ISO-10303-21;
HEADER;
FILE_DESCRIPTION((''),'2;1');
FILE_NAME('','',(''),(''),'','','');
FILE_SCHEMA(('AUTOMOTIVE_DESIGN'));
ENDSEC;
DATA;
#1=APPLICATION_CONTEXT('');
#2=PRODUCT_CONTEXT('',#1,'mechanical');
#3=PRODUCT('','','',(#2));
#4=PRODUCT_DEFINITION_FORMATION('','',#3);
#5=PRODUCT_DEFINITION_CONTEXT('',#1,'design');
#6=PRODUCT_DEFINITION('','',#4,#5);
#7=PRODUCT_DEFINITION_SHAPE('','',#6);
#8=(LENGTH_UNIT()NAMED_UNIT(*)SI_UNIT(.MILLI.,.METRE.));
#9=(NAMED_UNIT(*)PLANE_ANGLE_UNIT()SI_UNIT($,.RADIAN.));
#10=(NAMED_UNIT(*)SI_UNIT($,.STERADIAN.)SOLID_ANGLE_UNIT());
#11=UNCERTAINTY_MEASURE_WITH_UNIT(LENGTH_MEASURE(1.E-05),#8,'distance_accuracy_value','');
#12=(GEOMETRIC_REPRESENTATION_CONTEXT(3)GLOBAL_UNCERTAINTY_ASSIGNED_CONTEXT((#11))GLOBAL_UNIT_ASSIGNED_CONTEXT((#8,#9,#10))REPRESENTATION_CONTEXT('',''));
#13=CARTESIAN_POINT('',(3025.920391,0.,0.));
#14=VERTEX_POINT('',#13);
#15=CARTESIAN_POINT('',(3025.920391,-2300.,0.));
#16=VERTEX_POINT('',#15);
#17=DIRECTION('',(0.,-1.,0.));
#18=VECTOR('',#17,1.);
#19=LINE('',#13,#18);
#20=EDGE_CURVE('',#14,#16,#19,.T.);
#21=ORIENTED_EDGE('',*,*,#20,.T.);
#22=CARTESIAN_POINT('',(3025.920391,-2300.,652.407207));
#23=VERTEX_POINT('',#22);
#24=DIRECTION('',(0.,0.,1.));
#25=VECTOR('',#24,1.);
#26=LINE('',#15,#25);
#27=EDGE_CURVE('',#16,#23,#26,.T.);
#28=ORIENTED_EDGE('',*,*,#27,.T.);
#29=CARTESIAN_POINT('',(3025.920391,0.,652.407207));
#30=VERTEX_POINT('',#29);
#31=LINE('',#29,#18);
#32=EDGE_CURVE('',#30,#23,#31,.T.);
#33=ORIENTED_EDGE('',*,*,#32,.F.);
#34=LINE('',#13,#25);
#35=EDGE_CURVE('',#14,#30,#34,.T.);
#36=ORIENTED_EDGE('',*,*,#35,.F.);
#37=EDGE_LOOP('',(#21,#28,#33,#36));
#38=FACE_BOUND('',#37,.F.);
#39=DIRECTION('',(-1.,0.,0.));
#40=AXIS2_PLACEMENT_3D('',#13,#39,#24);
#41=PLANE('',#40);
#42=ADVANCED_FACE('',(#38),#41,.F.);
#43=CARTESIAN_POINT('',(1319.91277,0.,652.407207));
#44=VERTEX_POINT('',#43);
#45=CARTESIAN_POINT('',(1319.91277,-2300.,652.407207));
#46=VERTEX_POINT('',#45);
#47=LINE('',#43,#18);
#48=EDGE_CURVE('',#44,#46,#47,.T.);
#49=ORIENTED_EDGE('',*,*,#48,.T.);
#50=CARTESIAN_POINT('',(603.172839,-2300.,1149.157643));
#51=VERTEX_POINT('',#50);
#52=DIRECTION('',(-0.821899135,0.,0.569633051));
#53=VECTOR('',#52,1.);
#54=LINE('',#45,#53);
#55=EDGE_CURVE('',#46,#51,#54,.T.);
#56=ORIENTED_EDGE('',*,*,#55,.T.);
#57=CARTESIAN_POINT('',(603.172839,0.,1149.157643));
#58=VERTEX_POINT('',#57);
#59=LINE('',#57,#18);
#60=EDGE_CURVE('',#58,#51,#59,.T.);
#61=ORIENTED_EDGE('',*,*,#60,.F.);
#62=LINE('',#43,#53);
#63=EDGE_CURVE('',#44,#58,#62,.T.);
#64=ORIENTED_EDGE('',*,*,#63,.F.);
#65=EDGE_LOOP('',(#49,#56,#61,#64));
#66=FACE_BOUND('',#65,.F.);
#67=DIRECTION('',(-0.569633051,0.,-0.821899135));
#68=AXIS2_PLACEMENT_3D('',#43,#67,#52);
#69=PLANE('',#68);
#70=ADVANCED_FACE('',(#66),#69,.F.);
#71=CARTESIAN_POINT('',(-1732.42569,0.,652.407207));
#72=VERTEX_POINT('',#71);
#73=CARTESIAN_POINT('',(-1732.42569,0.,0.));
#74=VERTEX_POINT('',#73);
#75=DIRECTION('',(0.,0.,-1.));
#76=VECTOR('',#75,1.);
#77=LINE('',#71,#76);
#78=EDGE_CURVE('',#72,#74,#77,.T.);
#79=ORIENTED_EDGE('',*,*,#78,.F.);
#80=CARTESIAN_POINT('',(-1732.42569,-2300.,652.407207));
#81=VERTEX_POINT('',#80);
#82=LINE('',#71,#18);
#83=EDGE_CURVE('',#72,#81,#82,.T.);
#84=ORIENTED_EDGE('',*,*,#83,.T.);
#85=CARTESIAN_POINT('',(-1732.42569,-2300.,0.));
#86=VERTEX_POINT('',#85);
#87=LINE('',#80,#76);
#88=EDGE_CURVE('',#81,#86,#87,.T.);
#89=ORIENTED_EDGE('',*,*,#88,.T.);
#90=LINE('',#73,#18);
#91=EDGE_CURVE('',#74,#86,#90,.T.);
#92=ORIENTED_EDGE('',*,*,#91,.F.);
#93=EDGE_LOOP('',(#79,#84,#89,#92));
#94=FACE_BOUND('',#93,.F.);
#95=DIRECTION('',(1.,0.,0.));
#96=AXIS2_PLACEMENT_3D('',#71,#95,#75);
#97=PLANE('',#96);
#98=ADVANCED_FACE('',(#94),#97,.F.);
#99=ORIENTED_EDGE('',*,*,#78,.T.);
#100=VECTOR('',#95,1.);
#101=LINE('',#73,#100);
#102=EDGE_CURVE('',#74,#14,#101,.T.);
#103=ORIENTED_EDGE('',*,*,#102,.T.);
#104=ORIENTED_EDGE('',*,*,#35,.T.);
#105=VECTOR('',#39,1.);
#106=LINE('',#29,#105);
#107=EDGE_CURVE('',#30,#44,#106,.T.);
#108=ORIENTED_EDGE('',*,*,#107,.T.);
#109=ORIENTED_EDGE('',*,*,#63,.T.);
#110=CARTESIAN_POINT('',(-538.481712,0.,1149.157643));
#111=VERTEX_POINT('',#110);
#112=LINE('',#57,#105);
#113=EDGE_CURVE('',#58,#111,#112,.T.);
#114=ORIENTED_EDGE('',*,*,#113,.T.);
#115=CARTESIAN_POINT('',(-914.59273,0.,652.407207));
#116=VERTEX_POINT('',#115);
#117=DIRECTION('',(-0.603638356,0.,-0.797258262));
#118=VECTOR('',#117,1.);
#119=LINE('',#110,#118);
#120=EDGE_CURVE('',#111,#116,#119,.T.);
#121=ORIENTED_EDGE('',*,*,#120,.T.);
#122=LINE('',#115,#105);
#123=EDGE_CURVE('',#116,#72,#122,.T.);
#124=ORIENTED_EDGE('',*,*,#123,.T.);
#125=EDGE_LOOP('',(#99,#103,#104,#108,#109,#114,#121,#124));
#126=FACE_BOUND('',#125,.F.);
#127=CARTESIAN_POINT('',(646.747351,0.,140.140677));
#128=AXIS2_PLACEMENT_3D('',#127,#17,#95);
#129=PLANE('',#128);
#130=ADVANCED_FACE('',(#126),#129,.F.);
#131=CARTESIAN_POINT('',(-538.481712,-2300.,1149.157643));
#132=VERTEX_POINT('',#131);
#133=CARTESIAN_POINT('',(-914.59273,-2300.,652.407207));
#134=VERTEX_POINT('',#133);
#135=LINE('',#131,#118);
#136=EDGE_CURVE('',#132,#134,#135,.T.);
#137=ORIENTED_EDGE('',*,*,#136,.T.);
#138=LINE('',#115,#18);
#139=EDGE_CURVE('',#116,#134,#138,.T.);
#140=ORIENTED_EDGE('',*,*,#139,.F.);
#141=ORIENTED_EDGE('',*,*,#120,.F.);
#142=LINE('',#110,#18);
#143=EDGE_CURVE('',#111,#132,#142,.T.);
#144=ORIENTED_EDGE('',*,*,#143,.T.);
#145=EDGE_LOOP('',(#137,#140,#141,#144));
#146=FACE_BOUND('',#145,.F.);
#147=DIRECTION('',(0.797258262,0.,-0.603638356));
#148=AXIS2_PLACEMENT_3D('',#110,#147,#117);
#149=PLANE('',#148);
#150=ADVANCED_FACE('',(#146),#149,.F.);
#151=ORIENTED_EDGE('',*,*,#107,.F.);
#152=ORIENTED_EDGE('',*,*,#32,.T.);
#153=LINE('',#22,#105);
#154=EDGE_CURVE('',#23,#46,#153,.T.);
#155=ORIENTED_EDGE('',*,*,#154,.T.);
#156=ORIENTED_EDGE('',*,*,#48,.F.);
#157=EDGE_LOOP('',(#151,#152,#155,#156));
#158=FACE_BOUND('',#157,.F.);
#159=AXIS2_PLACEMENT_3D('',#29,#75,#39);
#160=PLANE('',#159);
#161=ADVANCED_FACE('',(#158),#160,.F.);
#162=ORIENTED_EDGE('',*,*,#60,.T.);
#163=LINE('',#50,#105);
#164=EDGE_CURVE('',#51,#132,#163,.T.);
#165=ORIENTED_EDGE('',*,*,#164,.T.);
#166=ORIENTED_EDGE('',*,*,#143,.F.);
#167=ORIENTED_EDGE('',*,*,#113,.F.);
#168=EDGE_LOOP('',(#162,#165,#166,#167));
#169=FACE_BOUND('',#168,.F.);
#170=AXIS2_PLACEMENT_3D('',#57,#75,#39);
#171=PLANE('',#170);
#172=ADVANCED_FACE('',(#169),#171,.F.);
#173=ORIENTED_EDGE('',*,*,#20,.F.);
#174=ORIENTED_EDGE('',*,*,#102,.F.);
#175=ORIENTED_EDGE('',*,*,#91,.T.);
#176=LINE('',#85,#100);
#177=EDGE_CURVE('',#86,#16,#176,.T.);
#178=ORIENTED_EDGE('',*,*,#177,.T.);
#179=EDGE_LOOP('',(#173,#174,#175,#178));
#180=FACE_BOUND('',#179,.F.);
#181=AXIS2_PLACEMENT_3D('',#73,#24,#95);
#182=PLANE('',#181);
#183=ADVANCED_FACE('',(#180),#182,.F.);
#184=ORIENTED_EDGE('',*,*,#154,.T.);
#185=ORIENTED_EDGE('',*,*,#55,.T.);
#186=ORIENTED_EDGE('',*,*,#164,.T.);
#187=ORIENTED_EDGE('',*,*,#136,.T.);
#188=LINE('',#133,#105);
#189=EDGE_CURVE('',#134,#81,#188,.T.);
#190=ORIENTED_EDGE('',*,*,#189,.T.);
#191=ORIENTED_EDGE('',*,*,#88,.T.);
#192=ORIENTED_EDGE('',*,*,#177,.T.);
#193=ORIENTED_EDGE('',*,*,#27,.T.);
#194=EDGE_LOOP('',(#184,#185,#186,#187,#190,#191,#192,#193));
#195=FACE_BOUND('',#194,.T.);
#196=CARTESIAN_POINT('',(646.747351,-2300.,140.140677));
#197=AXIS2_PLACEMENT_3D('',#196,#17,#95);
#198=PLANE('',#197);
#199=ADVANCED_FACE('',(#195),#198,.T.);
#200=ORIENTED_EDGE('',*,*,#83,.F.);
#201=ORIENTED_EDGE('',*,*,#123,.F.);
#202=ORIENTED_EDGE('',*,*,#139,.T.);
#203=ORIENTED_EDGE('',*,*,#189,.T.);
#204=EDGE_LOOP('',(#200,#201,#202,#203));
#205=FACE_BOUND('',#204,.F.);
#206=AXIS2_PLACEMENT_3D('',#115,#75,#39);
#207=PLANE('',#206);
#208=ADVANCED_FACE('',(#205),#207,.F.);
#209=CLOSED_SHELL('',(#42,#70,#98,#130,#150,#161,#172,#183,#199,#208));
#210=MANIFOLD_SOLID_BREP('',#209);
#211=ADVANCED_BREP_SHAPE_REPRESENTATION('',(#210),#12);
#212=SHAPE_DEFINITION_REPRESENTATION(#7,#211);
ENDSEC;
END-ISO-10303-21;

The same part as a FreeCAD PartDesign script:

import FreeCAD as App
import Part
import Sketcher

V = App.Vector
Q = App.Units.Quantity

doc = App.newDocument("Part")
body = doc.addObject("PartDesign::Body", "Body")

sketch1 = body.newObject("Sketcher::SketchObject", "Sketch")
sketch1.AttachmentSupport = (doc.getObject("XZ_Plane"), [""])
sketch1.MapMode = "FlatFace"
sketch1.addGeometry(Part.LineSegment(V(-1732, 0, 0), V(3026, 0, 0)), False)
sketch1.addGeometry(Part.LineSegment(V(3026, 0, 0), V(3026, 652, 0)), False)
sketch1.addGeometry(Part.LineSegment(V(3026, 652, 0), V(1320, 652, 0)), False)
sketch1.addGeometry(Part.LineSegment(V(1320, 652, 0), V(603, 1149, 0)), False)
sketch1.addGeometry(Part.LineSegment(V(603, 1149, 0), V(-538, 1149, 0)), False)
sketch1.addGeometry(Part.LineSegment(V(-538, 1149, 0), V(-915, 652, 0)), False)
sketch1.addGeometry(Part.LineSegment(V(-915, 652, 0), V(-1732, 652, 0)), False)
sketch1.addGeometry(Part.LineSegment(V(-1732, 652, 0), V(-1732, 0, 0)), False)
sketch1.addConstraint(Sketcher.Constraint("Coincident", 0, 2, 1, 1))
sketch1.addConstraint(Sketcher.Constraint("Coincident", 1, 2, 2, 1))
sketch1.addConstraint(Sketcher.Constraint("Coincident", 2, 2, 3, 1))
sketch1.addConstraint(Sketcher.Constraint("Coincident", 3, 2, 4, 1))
sketch1.addConstraint(Sketcher.Constraint("Coincident", 4, 2, 5, 1))
sketch1.addConstraint(Sketcher.Constraint("Coincident", 5, 2, 6, 1))
sketch1.addConstraint(Sketcher.Constraint("Coincident", 6, 2, 7, 1))
sketch1.addConstraint(Sketcher.Constraint("Coincident", 7, 2, 0, 1))
sketch1.addConstraint(Sketcher.Constraint("Horizontal", 0))
sketch1.addConstraint(Sketcher.Constraint("Vertical", 1))
sketch1.addConstraint(Sketcher.Constraint("Horizontal", 2))
sketch1.addConstraint(Sketcher.Constraint("Horizontal", 4))
sketch1.addConstraint(Sketcher.Constraint("Horizontal", 6))
sketch1.addConstraint(Sketcher.Constraint("Vertical", 7))
sketch1.addConstraint(Sketcher.Constraint("PointOnObject", 0, 2, -1))
sketch1.addConstraint(Sketcher.Constraint("Horizontal", 2, 2, 5, 2))
sketch1.addConstraint(Sketcher.Constraint("DistanceX", 0, 1, 0, 2, Q("4758.346081 mm")))
sketch1.addConstraint(Sketcher.Constraint("DistanceX", 2, 2, 2, 1, Q("1706.007621 mm")))
sketch1.addConstraint(Sketcher.Constraint("DistanceX", 4, 2, 4, 1, Q("1141.654551 mm")))
sketch1.addConstraint(Sketcher.Constraint("DistanceX", 6, 2, 6, 1, Q("817.83296 mm")))
sketch1.addConstraint(Sketcher.Constraint("DistanceY", 1, 1, 1, 2, Q("652.407207 mm")))
sketch1.addConstraint(Sketcher.Constraint("DistanceX", -1, 1, 0, 2, Q("3025.920391 mm")))
sketch1.addConstraint(Sketcher.Constraint("DistanceX", -1, 1, 3, 2, Q("603.172839 mm")))
sketch1.addConstraint(Sketcher.Constraint("Distance", 3, Q("872.053395 mm")))
pad1 = body.newObject("PartDesign::Pad", "Pad")
pad1.Profile = sketch1
pad1.Length = 2300

doc.recompute()
